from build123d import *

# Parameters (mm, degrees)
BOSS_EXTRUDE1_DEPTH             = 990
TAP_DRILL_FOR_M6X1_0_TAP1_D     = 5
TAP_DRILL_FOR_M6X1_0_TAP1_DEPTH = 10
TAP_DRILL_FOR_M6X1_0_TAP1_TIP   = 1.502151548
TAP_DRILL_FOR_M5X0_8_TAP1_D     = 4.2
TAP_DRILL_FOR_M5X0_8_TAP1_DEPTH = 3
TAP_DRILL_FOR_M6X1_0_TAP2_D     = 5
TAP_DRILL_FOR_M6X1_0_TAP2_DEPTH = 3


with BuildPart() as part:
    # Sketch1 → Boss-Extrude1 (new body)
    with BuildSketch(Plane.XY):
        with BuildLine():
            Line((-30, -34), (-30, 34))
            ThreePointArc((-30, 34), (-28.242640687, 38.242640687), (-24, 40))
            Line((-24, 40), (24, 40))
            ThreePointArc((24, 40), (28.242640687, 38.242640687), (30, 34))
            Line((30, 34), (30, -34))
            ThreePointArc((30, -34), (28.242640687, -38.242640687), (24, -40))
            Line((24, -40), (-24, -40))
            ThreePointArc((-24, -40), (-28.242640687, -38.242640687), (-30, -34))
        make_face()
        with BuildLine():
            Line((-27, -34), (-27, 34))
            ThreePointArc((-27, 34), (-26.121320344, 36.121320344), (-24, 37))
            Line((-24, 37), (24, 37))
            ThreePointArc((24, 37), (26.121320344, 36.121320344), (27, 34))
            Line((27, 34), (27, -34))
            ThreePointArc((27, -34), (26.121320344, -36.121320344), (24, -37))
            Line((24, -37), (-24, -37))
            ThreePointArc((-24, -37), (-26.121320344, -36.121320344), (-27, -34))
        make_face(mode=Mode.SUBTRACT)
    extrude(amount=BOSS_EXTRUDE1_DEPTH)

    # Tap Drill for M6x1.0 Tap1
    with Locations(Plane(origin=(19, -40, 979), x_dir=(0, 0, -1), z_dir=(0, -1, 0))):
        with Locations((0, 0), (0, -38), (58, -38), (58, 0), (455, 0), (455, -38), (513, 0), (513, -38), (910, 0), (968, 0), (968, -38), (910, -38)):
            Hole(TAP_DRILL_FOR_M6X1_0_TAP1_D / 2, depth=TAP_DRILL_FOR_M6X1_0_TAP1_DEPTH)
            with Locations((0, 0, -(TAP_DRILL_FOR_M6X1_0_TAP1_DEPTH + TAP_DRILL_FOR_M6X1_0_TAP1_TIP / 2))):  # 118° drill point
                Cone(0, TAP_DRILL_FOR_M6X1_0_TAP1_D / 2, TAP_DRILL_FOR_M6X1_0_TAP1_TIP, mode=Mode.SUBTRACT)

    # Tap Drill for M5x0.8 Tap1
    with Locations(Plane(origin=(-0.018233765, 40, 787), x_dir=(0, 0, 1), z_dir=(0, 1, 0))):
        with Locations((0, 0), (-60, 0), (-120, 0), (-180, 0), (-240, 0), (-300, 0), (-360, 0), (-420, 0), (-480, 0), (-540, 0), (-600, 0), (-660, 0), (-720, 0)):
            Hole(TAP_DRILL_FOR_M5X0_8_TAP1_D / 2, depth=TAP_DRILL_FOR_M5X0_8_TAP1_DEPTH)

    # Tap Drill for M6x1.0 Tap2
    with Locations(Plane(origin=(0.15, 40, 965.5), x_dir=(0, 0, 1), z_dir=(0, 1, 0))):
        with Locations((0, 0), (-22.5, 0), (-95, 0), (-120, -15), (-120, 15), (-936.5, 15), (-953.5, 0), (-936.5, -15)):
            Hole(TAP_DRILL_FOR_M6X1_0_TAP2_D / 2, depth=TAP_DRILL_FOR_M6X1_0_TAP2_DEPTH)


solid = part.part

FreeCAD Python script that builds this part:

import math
import FreeCAD as App
import Part
import Sketcher

V = App.Vector
Q = App.Units.Quantity

doc = App.newDocument("Part")
body = doc.addObject("PartDesign::Body", "Body")

# Sketch on XY plane
sketch1 = body.newObject("Sketcher::SketchObject", "Sketch")
sketch1.AttachmentSupport = (doc.getObject("XY_Plane"), [""])
sketch1.MapMode = "FlatFace"
sketch1.addGeometry([
    Part.LineSegment(V(-30, 34, 0), V(-30, -34, 0)),  # 0
    Part.ArcOfCircle(Part.Circle(V(-24, -34, 0), V(0, 0, 1), 6), math.radians(180), math.radians(270)),  # 1
    Part.LineSegment(V(-24, -40, 0), V(24, -40, 0)),  # 2
    Part.ArcOfCircle(Part.Circle(V(24, -34, 0), V(0, 0, 1), 6), math.radians(-90), math.radians(0)),  # 3
    Part.LineSegment(V(30, -34, 0), V(30, 34, 0)),  # 4
    Part.ArcOfCircle(Part.Circle(V(24, 34, 0), V(0, 0, 1), 6), math.radians(0), math.radians(90)),  # 5
    Part.LineSegment(V(24, 40, 0), V(-24, 40, 0)),  # 6
    Part.ArcOfCircle(Part.Circle(V(-24, 34, 0), V(0, 0, 1), 6), math.radians(90), math.radians(180)),  # 7
    Part.LineSegment(V(-27, -34, 0), V(-27, 34, 0)),  # 8
    Part.ArcOfCircle(Part.Circle(V(-24, 34, 0), V(0, 0, 1), 3), math.radians(90), math.radians(180)),  # 9
    Part.LineSegment(V(-24, 37, 0), V(24, 37, 0)),  # 10
    Part.ArcOfCircle(Part.Circle(V(24, 34, 0), V(0, 0, 1), 3), math.radians(0), math.radians(90)),  # 11
    Part.LineSegment(V(27, 34, 0), V(27, -34, 0)),  # 12
    Part.ArcOfCircle(Part.Circle(V(24, -34, 0), V(0, 0, 1), 3), math.radians(-90), math.radians(0)),  # 13
    Part.LineSegment(V(24, -37, 0), V(-24, -37, 0)),  # 14
    Part.ArcOfCircle(Part.Circle(V(-24, -34, 0), V(0, 0, 1), 3), math.radians(180), math.radians(270)),  # 15
], False)
sketch1.addConstraint([
    Sketcher.Constraint("Tangent", 0, 2, 1, 1),
    Sketcher.Constraint("Tangent", 1, 2, 2, 1),
    Sketcher.Constraint("Tangent", 2, 2, 3, 1),
    Sketcher.Constraint("Tangent", 3, 2, 4, 1),
    Sketcher.Constraint("Tangent", 4, 2, 5, 1),
    Sketcher.Constraint("Tangent", 5, 2, 6, 1),
    Sketcher.Constraint("Tangent", 6, 2, 7, 1),
    Sketcher.Constraint("Tangent", 7, 2, 0, 1),
    Sketcher.Constraint("Tangent", 8, 2, 9, 2),
    Sketcher.Constraint("Tangent", 9, 1, 10, 1),
    Sketcher.Constraint("Tangent", 10, 2, 11, 2),
    Sketcher.Constraint("Tangent", 11, 1, 12, 1),
    Sketcher.Constraint("Tangent", 12, 2, 13, 2),
    Sketcher.Constraint("Tangent", 13, 1, 14, 1),
    Sketcher.Constraint("Tangent", 14, 2, 15, 2),
    Sketcher.Constraint("Tangent", 15, 1, 8, 1),
    Sketcher.Constraint("Vertical", 0),
    Sketcher.Constraint("Horizontal", 2),
    Sketcher.Constraint("Vertical", 4),
    Sketcher.Constraint("Horizontal", 6),
    Sketcher.Constraint("Vertical", 8),
    Sketcher.Constraint("Horizontal", 10),
    Sketcher.Constraint("Vertical", 12),
    Sketcher.Constraint("Horizontal", 14),
    Sketcher.Constraint("Coincident", 9, 3, 7, 3),
    Sketcher.Constraint("Coincident", 11, 3, 5, 3),
    Sketcher.Constraint("Coincident", 13, 3, 3, 3),
    Sketcher.Constraint("Equal", 1, 3),
    Sketcher.Constraint("Equal", 3, 5),
    Sketcher.Constraint("Equal", 5, 7),
    Sketcher.Constraint("Equal", 13, 15),
    Sketcher.Constraint("Symmetric", 1, 3, 5, 3, -1, 1),
    Sketcher.Constraint("Radius", 1, Q("6 mm")),
    Sketcher.Constraint("Radius", 9, Q("3 mm")),
    Sketcher.Constraint("DistanceX", 2, 1, 2, 2, Q("48 mm")),
    Sketcher.Constraint("DistanceY", 0, 2, 0, 1, Q("68 mm")),
])
pad1 = body.newObject("PartDesign::Pad", "Pad")
pad1.Profile = sketch1
pad1.Length = 990

# Sketch on XZ plane
sketch2 = body.newObject("Sketcher::SketchObject", "Sketch001")
sketch2.AttachmentSupport = (doc.getObject("XZ_Plane"), [""])
sketch2.MapMode = "FlatFace"
sketch2.AttachmentOffset = App.Placement(V(0, 0, 40), App.Rotation())
sketch2.addGeometry([
    Part.Circle(V(19, 979, 0), V(0, 0, 1), 2.5),  # 0
    Part.Circle(V(-19, 979, 0), V(0, 0, 1), 2.5),  # 1
    Part.Circle(V(-19, 921, 0), V(0, 0, 1), 2.5),  # 2
    Part.Circle(V(19, 921, 0), V(0, 0, 1), 2.5),  # 3
    Part.Circle(V(19, 524, 0), V(0, 0, 1), 2.5),  # 4
    Part.Circle(V(-19, 524, 0), V(0, 0, 1), 2.5),  # 5
    Part.Circle(V(19, 466, 0), V(0, 0, 1), 2.5),  # 6
    Part.Circle(V(-19, 466, 0), V(0, 0, 1), 2.5),  # 7
    Part.Circle(V(19, 69, 0), V(0, 0, 1), 2.5),  # 8
    Part.Circle(V(19, 11, 0), V(0, 0, 1), 2.5),  # 9
    Part.Circle(V(-19, 11, 0), V(0, 0, 1), 2.5),  # 10
    Part.Circle(V(-19, 69, 0), V(0, 0, 1), 2.5),  # 11
], False)
sketch2.addConstraint([
    Sketcher.Constraint("Equal", 0, 1),
    Sketcher.Constraint("Equal", 1, 2),
    Sketcher.Constraint("Equal", 2, 3),
    Sketcher.Constraint("Equal", 3, 4),
    Sketcher.Constraint("Equal", 4, 5),
    Sketcher.Constraint("Equal", 5, 6),
    Sketcher.Constraint("Equal", 6, 7),
    Sketcher.Constraint("Equal", 7, 8),
    Sketcher.Constraint("Equal", 8, 9),
    Sketcher.Constraint("Equal", 9, 10),
    Sketcher.Constraint("Equal", 10, 11),
    Sketcher.Constraint("Symmetric", 0, 3, 1, 3, -2),
    Sketcher.Constraint("Symmetric", 2, 3, 3, 3, -2),
    Sketcher.Constraint("Symmetric", 4, 3, 5, 3, -2),
    Sketcher.Constraint("Symmetric", 6, 3, 7, 3, -2),
    Sketcher.Constraint("Symmetric", 9, 3, 10, 3, -2),
    Sketcher.Constraint("Symmetric", 8, 3, 11, 3, -2),
    Sketcher.Constraint("Vertical", 1, 3, 2, 3),
    Sketcher.Constraint("Vertical", 3, 3, 4, 3),
    Sketcher.Constraint("Vertical", 4, 3, 6, 3),
    Sketcher.Constraint("Vertical", 6, 3, 8, 3),
    Sketcher.Constraint("Vertical", 8, 3, 9, 3),
    Sketcher.Constraint("Diameter", 0, Q("5 mm")),
    Sketcher.Constraint("DistanceX", -1, 1, 0, 3, Q("19 mm")),
    Sketcher.Constraint("DistanceY", -1, 1, 0, 3, Q("979 mm")),
    Sketcher.Constraint("DistanceY", -1, 1, 2, 3, Q("921 mm")),
    Sketcher.Constraint("DistanceY", -1, 1, 4, 3, Q("524 mm")),
    Sketcher.Constraint("DistanceY", -1, 1, 6, 3, Q("466 mm")),
    Sketcher.Constraint("DistanceY", -1, 1, 8, 3, Q("69 mm")),
    Sketcher.Constraint("DistanceY", -1, 1, 9, 3, Q("11 mm")),
])
doc.recompute()
hole = body.newObject("PartDesign::Hole", "Hole")
hole.Profile = sketch2
hole.ThreadType = "None"
hole.Diameter = 5
hole.DepthType = "Dimension"
hole.Depth = 10
hole.DrillPoint = "Angled"
hole.DrillPointAngle = 118

# Sketch on XZ plane
sketch3 = body.newObject("Sketcher::SketchObject", "Sketch002")
sketch3.AttachmentSupport = (doc.getObject("XZ_Plane"), [""])
sketch3.MapMode = "FlatFace"
sketch3.AttachmentOffset = App.Placement(V(0, 0, -40), App.Rotation())
sketch3.addGeometry([
    Part.Circle(V(0, 787, 0), V(0, 0, 1), 2.1),  # 0
    Part.Circle(V(0, 727, 0), V(0, 0, 1), 2.1),  # 1
    Part.Circle(V(0, 667, 0), V(0, 0, 1), 2.1),  # 2
    Part.Circle(V(0, 607, 0), V(0, 0, 1), 2.1),  # 3
    Part.Circle(V(0, 547, 0), V(0, 0, 1), 2.1),  # 4
    Part.Circle(V(0, 487, 0), V(0, 0, 1), 2.1),  # 5
    Part.Circle(V(0, 427, 0), V(0, 0, 1), 2.1),  # 6
    Part.Circle(V(0, 367, 0), V(0, 0, 1), 2.1),  # 7
    Part.Circle(V(0, 307, 0), V(0, 0, 1), 2.1),  # 8
    Part.Circle(V(0, 247, 0), V(0, 0, 1), 2.1),  # 9
    Part.Circle(V(0, 187, 0), V(0, 0, 1), 2.1),  # 10
    Part.Circle(V(0, 127, 0), V(0, 0, 1), 2.1),  # 11
    Part.Circle(V(0, 67, 0), V(0, 0, 1), 2.1),  # 12
], False)
sketch3.addConstraint([
    Sketcher.Constraint("Equal", 0, 1),
    Sketcher.Constraint("Equal", 1, 2),
    Sketcher.Constraint("Equal", 2, 3),
    Sketcher.Constraint("Equal", 3, 4),
    Sketcher.Constraint("Equal", 4, 5),
    Sketcher.Constraint("Equal", 5, 6),
    Sketcher.Constraint("Equal", 6, 7),
    Sketcher.Constraint("Equal", 7, 8),
    Sketcher.Constraint("Equal", 8, 9),
    Sketcher.Constraint("Equal", 9, 10),
    Sketcher.Constraint("Equal", 10, 11),
    Sketcher.Constraint("Equal", 11, 12),
    Sketcher.Constraint("Vertical", 0, 3, 1, 3),
    Sketcher.Constraint("Vertical", 1, 3, 2, 3),
    Sketcher.Constraint("Vertical", 2, 3, 3, 3),
    Sketcher.Constraint("Vertical", 3, 3, 4, 3),
    Sketcher.Constraint("Vertical", 4, 3, 5, 3),
    Sketcher.Constraint("Vertical", 5, 3, 6, 3),
    Sketcher.Constraint("Vertical", 6, 3, 7, 3),
    Sketcher.Constraint("Vertical", 7, 3, 8, 3),
    Sketcher.Constraint("Vertical", 8, 3, 9, 3),
    Sketcher.Constraint("Vertical", 9, 3, 10, 3),
    Sketcher.Constraint("Vertical", 10, 3, 11, 3),
    Sketcher.Constraint("Vertical", 11, 3, 12, 3),
    Sketcher.Constraint("Diameter", 0, Q("4.2 mm")),
    Sketcher.Constraint("DistanceY", -1, 1, 0, 3, Q("787 mm")),
    Sketcher.Constraint("DistanceY", -1, 1, 1, 3, Q("727 mm")),
    Sketcher.Constraint("DistanceY", -1, 1, 2, 3, Q("667 mm")),
    Sketcher.Constraint("DistanceY", -1, 1, 3, 3, Q("607 mm")),
    Sketcher.Constraint("DistanceY", -1, 1, 4, 3, Q("547 mm")),
    Sketcher.Constraint("DistanceY", -1, 1, 5, 3, Q("487 mm")),
    Sketcher.Constraint("DistanceY", -1, 1, 6, 3, Q("427 mm")),
    Sketcher.Constraint("DistanceY", -1, 1, 7, 3, Q("367 mm")),
    Sketcher.Constraint("DistanceY", -1, 1, 8, 3, Q("307 mm")),
    Sketcher.Constraint("DistanceY", -1, 1, 9, 3, Q("247 mm")),
    Sketcher.Constraint("DistanceY", -1, 1, 10, 3, Q("187 mm")),
    Sketcher.Constraint("DistanceY", -1, 1, 11, 3, Q("127 mm")),
    Sketcher.Constraint("DistanceY", -1, 1, 12, 3, Q("67 mm")),
    Sketcher.Constraint("DistanceX", 0, 3, -1, 1, Q("0.018234 mm")),
])
doc.recompute()
hole2 = body.newObject("PartDesign::Hole", "Hole001")
hole2.Profile = sketch3
hole2.ThreadType = "None"
hole2.Diameter = 4.2
hole2.DepthType = "Dimension"
hole2.Depth = 3
hole2.DrillPoint = "Flat"
hole2.Reversed = True

# Sketch on XZ plane
sketch4 = body.newObject("Sketcher::SketchObject", "Sketch003")
sketch4.AttachmentSupport = (doc.getObject("XZ_Plane"), [""])
sketch4.MapMode = "FlatFace"
sketch4.AttachmentOffset = App.Placement(V(0, 0, -40), App.Rotation())
sketch4.addGeometry([
    Part.Circle(V(0.1, 965.5, 0), V(0, 0, 1), 2.5),  # 0
    Part.Circle(V(0.1, 943, 0), V(0, 0, 1), 2.5),  # 1
    Part.Circle(V(0.1, 870.5, 0), V(0, 0, 1), 2.5),  # 2
    Part.Circle(V(-14.8, 845.5, 0), V(0, 0, 1), 2.5),  # 3
    Part.Circle(V(15.2, 845.5, 0), V(0, 0, 1), 2.5),  # 4
    Part.Circle(V(15.2, 29, 0), V(0, 0, 1), 2.5),  # 5
    Part.Circle(V(0.1, 12, 0), V(0, 0, 1), 2.5),  # 6
    Part.Circle(V(-14.8, 29, 0), V(0, 0, 1), 2.5),  # 7
], False)
sketch4.addConstraint([
    Sketcher.Constraint("Equal", 0, 1),
    Sketcher.Constraint("Equal", 1, 2),
    Sketcher.Constraint("Equal", 2, 3),
    Sketcher.Constraint("Equal", 3, 4),
    Sketcher.Constraint("Equal", 4, 5),
    Sketcher.Constraint("Equal", 5, 6),
    Sketcher.Constraint("Equal", 6, 7),
    Sketcher.Constraint("Horizontal", 3, 3, 4, 3),
    Sketcher.Constraint("Horizontal", 5, 3, 7, 3),
    Sketcher.Constraint("Vertical", 0, 3, 1, 3),
    Sketcher.Constraint("Vertical", 1, 3, 2, 3),
    Sketcher.Constraint("Vertical", 4, 3, 5, 3),
    Sketcher.Constraint("Vertical", 2, 3, 6, 3),
    Sketcher.Constraint("Vertical", 3, 3, 7, 3),
    Sketcher.Constraint("Diameter", 0, Q("5 mm")),
    Sketcher.Constraint("DistanceY", -1, 1, 1, 3, Q("943 mm")),
    Sketcher.Constraint("DistanceY", -1, 1, 5, 3, Q("29 mm")),
    Sketcher.Constraint("DistanceY", -1, 1, 6, 3, Q("12 mm")),
    Sketcher.Constraint("DistanceY", 2, 3, 0, 3, Q("95 mm")),
    Sketcher.Constraint("DistanceX", 3, 3, 2, 3, Q("15 mm")),
    Sketcher.Constraint("DistanceY", 3, 3, 2, 3, Q("25 mm")),
    Sketcher.Constraint("DistanceX", 2, 3, 4, 3, Q("15 mm")),
    Sketcher.Constraint("DistanceY", -1, 1, 0, 3, Q("965.5 mm")),
    Sketcher.Constraint("DistanceX", -1, 1, 0, 3, Q("0.15 mm")),
])
doc.recompute()
hole3 = body.newObject("PartDesign::Hole", "Hole002")
hole3.Profile = sketch4
hole3.ThreadType = "None"
hole3.Diameter = 5
hole3.DepthType = "Dimension"
hole3.Depth = 3
hole3.DrillPoint = "Flat"
hole3.Reversed = True

doc.recompute()
